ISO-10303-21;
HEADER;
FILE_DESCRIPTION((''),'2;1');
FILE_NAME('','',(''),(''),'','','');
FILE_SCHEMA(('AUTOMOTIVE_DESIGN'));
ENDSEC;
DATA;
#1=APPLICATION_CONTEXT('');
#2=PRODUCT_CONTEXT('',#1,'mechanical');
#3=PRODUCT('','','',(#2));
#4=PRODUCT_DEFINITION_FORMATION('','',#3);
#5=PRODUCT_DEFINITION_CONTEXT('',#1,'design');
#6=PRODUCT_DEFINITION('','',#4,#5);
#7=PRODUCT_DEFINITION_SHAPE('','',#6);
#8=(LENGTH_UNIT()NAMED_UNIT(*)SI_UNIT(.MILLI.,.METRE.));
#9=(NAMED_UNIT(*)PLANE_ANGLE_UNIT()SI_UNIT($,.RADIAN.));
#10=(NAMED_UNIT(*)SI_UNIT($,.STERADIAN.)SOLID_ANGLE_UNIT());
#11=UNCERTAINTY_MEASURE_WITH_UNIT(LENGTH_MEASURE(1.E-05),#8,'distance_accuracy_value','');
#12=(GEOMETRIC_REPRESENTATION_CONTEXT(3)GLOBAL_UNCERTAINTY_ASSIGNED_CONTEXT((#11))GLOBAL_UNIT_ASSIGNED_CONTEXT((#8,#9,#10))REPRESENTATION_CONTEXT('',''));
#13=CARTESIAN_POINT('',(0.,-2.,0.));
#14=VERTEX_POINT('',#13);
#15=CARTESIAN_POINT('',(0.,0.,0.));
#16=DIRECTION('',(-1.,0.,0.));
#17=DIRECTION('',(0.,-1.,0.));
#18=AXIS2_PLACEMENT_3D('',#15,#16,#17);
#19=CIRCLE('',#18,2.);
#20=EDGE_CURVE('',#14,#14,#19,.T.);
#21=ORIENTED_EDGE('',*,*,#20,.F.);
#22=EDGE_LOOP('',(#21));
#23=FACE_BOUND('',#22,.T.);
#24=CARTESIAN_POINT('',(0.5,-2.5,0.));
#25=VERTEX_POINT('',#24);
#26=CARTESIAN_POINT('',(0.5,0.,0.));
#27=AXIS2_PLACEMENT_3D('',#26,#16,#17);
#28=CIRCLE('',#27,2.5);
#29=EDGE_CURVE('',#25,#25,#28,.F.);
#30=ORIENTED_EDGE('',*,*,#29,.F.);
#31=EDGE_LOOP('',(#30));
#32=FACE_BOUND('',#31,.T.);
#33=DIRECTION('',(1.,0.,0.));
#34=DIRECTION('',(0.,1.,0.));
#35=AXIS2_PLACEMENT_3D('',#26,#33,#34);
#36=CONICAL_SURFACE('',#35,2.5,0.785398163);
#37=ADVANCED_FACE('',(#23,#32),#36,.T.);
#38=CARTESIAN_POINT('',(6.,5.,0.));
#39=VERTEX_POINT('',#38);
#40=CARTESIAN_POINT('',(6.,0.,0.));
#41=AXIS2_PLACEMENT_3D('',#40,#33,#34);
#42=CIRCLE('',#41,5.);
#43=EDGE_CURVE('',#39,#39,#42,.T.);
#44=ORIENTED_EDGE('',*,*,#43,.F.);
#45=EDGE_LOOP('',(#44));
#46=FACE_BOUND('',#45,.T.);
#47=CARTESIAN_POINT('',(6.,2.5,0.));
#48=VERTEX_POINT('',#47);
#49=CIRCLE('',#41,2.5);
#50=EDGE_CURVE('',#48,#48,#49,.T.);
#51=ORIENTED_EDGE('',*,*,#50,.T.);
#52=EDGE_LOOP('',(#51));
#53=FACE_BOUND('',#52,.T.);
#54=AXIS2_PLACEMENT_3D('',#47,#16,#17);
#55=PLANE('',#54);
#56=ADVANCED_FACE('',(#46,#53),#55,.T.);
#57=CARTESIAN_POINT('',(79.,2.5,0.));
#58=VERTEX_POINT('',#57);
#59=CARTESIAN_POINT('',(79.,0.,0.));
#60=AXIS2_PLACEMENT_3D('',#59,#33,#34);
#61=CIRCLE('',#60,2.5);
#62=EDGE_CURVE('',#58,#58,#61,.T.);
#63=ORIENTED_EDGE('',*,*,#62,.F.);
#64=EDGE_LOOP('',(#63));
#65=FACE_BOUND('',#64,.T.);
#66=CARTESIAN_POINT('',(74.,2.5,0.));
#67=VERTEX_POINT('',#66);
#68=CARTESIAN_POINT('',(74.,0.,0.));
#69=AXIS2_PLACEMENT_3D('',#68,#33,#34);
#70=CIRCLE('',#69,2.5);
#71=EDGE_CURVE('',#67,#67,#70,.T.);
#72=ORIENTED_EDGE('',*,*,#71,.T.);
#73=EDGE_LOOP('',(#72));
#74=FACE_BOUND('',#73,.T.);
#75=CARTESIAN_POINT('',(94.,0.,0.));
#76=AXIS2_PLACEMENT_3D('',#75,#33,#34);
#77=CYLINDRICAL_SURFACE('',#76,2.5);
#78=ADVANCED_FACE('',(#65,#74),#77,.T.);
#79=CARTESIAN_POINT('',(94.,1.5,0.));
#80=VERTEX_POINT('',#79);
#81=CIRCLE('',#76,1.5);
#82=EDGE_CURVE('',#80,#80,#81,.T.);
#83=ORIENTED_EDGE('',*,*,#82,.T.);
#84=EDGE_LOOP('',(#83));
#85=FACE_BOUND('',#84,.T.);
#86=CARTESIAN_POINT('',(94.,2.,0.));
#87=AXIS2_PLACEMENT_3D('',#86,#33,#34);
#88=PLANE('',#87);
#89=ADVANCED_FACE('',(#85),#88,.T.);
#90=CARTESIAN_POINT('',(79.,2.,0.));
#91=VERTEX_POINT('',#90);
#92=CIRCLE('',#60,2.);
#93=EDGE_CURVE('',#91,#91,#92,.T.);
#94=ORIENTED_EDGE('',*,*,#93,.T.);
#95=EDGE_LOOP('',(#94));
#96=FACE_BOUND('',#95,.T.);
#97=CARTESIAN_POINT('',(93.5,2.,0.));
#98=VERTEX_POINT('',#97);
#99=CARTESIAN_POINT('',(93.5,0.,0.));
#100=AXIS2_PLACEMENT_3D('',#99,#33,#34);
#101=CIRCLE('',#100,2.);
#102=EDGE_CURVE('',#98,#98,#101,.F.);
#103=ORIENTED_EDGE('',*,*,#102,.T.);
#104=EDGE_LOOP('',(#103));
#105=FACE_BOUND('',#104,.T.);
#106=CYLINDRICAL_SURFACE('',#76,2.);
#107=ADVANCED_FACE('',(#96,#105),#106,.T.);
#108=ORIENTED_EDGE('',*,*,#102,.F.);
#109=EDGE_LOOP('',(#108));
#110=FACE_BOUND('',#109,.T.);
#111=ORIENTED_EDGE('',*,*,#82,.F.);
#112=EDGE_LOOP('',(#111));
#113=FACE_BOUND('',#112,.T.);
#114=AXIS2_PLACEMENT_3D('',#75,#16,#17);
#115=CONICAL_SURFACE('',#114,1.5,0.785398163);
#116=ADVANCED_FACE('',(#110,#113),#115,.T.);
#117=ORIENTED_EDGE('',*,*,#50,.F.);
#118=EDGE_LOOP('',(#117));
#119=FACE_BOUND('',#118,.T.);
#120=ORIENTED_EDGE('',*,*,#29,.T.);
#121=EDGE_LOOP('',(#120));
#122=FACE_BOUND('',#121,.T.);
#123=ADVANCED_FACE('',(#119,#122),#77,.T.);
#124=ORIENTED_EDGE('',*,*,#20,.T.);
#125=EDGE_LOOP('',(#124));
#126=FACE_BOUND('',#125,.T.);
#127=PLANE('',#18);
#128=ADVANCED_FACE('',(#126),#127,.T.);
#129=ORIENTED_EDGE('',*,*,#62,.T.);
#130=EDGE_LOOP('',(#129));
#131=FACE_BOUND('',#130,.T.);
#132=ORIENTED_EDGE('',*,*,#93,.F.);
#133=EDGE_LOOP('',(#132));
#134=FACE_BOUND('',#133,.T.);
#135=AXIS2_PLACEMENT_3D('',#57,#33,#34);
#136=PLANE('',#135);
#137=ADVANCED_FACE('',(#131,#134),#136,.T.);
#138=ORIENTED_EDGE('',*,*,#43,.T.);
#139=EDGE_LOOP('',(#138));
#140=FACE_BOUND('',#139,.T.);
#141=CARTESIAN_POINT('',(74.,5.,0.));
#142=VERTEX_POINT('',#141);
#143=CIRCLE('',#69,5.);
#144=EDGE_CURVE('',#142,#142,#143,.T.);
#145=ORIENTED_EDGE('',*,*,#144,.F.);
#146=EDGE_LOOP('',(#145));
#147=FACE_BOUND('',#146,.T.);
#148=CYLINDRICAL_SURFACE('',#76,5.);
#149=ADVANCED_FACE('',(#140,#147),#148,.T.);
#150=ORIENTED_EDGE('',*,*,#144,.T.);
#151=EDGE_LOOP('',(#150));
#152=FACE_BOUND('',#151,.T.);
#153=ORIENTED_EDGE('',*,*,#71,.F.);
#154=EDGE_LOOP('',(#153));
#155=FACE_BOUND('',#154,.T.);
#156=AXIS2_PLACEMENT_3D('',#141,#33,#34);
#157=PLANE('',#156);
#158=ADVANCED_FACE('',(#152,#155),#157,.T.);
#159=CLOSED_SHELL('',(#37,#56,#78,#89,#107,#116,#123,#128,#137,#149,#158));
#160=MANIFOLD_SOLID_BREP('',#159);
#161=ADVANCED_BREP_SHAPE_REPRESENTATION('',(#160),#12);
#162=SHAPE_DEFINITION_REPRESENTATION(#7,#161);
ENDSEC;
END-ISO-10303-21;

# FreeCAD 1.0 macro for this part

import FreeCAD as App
import Part
import Sketcher


def edges_at(feature, points):
    """Names of the edges that pass closest to the given points."""
    edges = feature.Shape.Edges
    near = lambda p: min(range(len(edges)), key=lambda i: edges[i].distToShape(Part.Vertex(*p))[0])
    return sorted({f"Edge{near(p) + 1}" for p in points})

doc = App.newDocument("Part")
body = doc.addObject("PartDesign::Body", "Body")

sketch1 = body.newObject("Sketcher::SketchObject", "Sketch")
sketch1.AttachmentSupport = (doc.getObject("XY_Plane"), [""])
sketch1.MapMode = "FlatFace"
sketch1.addGeometry([
    Part.LineSegment(App.Vector(0, 2.5, 0), App.Vector(0, 0, 0)),
    Part.LineSegment(App.Vector(0, 0, 0), App.Vector(94, 0, 0)),
    Part.LineSegment(App.Vector(94, 0, 0), App.Vector(94, 2, 0)),
    Part.LineSegment(App.Vector(94, 2, 0), App.Vector(79, 2, 0)),
    Part.LineSegment(App.Vector(79, 2, 0), App.Vector(79, 2.5, 0)),
    Part.LineSegment(App.Vector(79, 2.5, 0), App.Vector(74, 2.5, 0)),
    Part.LineSegment(App.Vector(74, 2.5, 0), App.Vector(74, 5, 0)),
    Part.LineSegment(App.Vector(74, 5, 0), App.Vector(6, 5, 0)),
    Part.LineSegment(App.Vector(6, 5, 0), App.Vector(6, 2.5, 0)),
    Part.LineSegment(App.Vector(6, 2.5, 0), App.Vector(0, 2.5, 0)),
], False)
sketch1.addConstraint([
    Sketcher.Constraint("Coincident", 0, 2, 1, 1),
    Sketcher.Constraint("Coincident", 1, 2, 2, 1),
    Sketcher.Constraint("Coincident", 2, 2, 3, 1),
    Sketcher.Constraint("Coincident", 3, 2, 4, 1),
    Sketcher.Constraint("Coincident", 4, 2, 5, 1),
    Sketcher.Constraint("Coincident", 5, 2, 6, 1),
    Sketcher.Constraint("Coincident", 6, 2, 7, 1),
    Sketcher.Constraint("Coincident", 7, 2, 8, 1),
    Sketcher.Constraint("Coincident", 8, 2, 9, 1),
    Sketcher.Constraint("Coincident", 9, 2, 0, 1),
    Sketcher.Constraint("Vertical", 0),
    Sketcher.Constraint("Horizontal", 1),
    Sketcher.Constraint("Vertical", 2),
    Sketcher.Constraint("Horizontal", 3),
    Sketcher.Constraint("Vertical", 4),
    Sketcher.Constraint("Horizontal", 5),
    Sketcher.Constraint("Vertical", 6),
    Sketcher.Constraint("Horizontal", 7),
    Sketcher.Constraint("Vertical", 8),
    Sketcher.Constraint("Horizontal", 9),
    Sketcher.Constraint("Coincident", 0, 2, -1, 1),
    Sketcher.Constraint("Horizontal", 5, 2, 8, 2),
    Sketcher.Constraint("Equal", 0, 6),
    Sketcher.Constraint("DistanceX", 1, 1, 1, 2, 94.0),
    Sketcher.Constraint("DistanceX", 3, 2, 3, 1, 15.0),
    Sketcher.Constraint("DistanceX", 5, 2, 5, 1, 5.0),
    Sketcher.Constraint("DistanceX", 7, 2, 7, 1, 68.0),
    Sketcher.Constraint("DistanceY", 2, 1, 2, 2, 2.0),
    Sketcher.Constraint("DistanceY", 0, 2, 0, 1, 2.5),
])
revolution = body.newObject("PartDesign::Revolution", "Revolution")
revolution.Profile = sketch1
revolution.ReferenceAxis = (sketch1, ["H_Axis"])
revolution.Angle = 360
doc.recompute()

chamfer = body.newObject("PartDesign::Chamfer", "Chamfer")
chamfer.Base = (revolution, edges_at(revolution, [(0, -2.5, 0), (94, -2, 0)]))
chamfer.Size = 0.5

doc.recompute()
